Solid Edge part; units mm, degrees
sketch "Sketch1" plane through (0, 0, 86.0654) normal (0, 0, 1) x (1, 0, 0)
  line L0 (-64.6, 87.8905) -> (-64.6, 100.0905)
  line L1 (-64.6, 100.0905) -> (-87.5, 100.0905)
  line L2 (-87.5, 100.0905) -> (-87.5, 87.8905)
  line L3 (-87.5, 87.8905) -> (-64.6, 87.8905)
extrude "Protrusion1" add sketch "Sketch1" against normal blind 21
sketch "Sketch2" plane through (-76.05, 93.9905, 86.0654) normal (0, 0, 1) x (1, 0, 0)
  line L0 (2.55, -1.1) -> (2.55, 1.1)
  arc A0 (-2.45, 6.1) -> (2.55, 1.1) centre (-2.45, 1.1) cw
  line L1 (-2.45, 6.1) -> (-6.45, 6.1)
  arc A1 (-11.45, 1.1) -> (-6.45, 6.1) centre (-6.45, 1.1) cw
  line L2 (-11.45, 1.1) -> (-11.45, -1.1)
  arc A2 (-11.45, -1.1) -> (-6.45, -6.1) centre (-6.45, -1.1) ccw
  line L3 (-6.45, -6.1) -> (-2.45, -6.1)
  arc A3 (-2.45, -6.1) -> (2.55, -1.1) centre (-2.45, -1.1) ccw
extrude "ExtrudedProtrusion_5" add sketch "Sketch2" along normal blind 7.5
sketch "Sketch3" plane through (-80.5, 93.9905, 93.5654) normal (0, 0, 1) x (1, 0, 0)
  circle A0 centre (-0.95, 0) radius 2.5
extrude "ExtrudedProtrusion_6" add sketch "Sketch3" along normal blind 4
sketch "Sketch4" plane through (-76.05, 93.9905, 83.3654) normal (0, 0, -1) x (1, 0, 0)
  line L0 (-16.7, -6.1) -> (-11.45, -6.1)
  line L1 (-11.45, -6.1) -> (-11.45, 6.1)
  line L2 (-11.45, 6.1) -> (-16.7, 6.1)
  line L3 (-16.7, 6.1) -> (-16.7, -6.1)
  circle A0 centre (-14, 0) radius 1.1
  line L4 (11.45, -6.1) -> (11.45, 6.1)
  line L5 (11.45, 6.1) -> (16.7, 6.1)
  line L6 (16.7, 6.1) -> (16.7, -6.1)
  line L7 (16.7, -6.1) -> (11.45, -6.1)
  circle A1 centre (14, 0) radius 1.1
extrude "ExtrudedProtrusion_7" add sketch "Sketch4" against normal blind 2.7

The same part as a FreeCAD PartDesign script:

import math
import FreeCAD as App
import Part
import Sketcher

V = App.Vector
Q = App.Units.Quantity


def add_polygon(sketch, points):
    """Adds a closed chain of lines whose ends are joined by coincident constraints."""
    first, n = sketch.GeometryCount, len(points)
    for a, b in zip(points, points[1:] + points[:1]):
        sketch.addGeometry(Part.LineSegment(App.Vector(*a, 0), App.Vector(*b, 0)), False)
    for i in range(n):
        sketch.addConstraint(Sketcher.Constraint("Coincident", first + i, 2, first + (i + 1) % n, 1))

doc = App.newDocument("Part")
body = doc.addObject("PartDesign::Body", "Body")

# Sketch on XY plane
sketch1 = body.newObject("Sketcher::SketchObject", "Sketch")
sketch1.AttachmentSupport = (doc.getObject("XY_Plane"), [""])
sketch1.MapMode = "FlatFace"
sketch1.AttachmentOffset = App.Placement(V(0, 0, 86.0654), App.Rotation())
add_polygon(sketch1, [(-88, 88), (-65, 88), (-65, 100), (-88, 100)])  # lines 0-3
sketch1.addConstraint([
    Sketcher.Constraint("Horizontal", 0),
    Sketcher.Constraint("Vertical", 1),
    Sketcher.Constraint("Horizontal", 2),
    Sketcher.Constraint("Vertical", 3),
    Sketcher.Constraint("DistanceX", 0, 1, 0, 2, Q("22.9 mm")),
    Sketcher.Constraint("DistanceY", 1, 1, 1, 2, Q("12.2 mm")),
    Sketcher.Constraint("DistanceX", 0, 2, -1, 1, Q("64.6 mm")),
    Sketcher.Constraint("DistanceY", -1, 1, 0, 2, Q("87.8905 mm")),
])
pad1 = body.newObject("PartDesign::Pad", "Pad")
pad1.Profile = sketch1
pad1.Length = 21
pad1.Reversed = True

# Sketch on XY plane
sketch2 = body.newObject("Sketcher::SketchObject", "Sketch001")
sketch2.AttachmentSupport = (doc.getObject("XY_Plane"), [""])
sketch2.MapMode = "FlatFace"
sketch2.AttachmentOffset = App.Placement(V(0, 0, 86.0654), App.Rotation())
sketch2.addGeometry([
    Part.ArcOfCircle(Part.Circle(V(-78.5, 92.9, 0), V(0, 0, 1), 5), math.radians(-90), math.radians(0)),  # 0
    Part.LineSegment(V(-73.5, 92.9, 0), V(-73.5, 95.1, 0)),  # 1
    Part.ArcOfCircle(Part.Circle(V(-78.5, 95.1, 0), V(0, 0, 1), 5), math.radians(0), math.radians(90)),  # 2
    Part.LineSegment(V(-78.5, 100.1, 0), V(-82.5, 100.1, 0)),  # 3
    Part.ArcOfCircle(Part.Circle(V(-82.5, 95.1, 0), V(0, 0, 1), 5), math.radians(90), math.radians(180)),  # 4
    Part.LineSegment(V(-87.5, 95.1, 0), V(-87.5, 92.9, 0)),  # 5
    Part.ArcOfCircle(Part.Circle(V(-82.5, 92.9, 0), V(0, 0, 1), 5), math.radians(180), math.radians(270)),  # 6
    Part.LineSegment(V(-82.5, 87.9, 0), V(-78.5, 87.9, 0)),  # 7
], False)
sketch2.addConstraint([
    Sketcher.Constraint("Tangent", 0, 2, 1, 1),
    Sketcher.Constraint("Tangent", 1, 2, 2, 1),
    Sketcher.Constraint("Tangent", 2, 2, 3, 1),
    Sketcher.Constraint("Tangent", 3, 2, 4, 1),
    Sketcher.Constraint("Tangent", 4, 2, 5, 1),
    Sketcher.Constraint("Tangent", 5, 2, 6, 1),
    Sketcher.Constraint("Tangent", 6, 2, 7, 1),
    Sketcher.Constraint("Tangent", 7, 2, 0, 1),
    Sketcher.Constraint("Vertical", 1),
    Sketcher.Constraint("Horizontal", 3),
    Sketcher.Constraint("Vertical", 5),
    Sketcher.Constraint("Horizontal", 7),
    Sketcher.Constraint("Equal", 0, 2),
    Sketcher.Constraint("Equal", 2, 4),
    Sketcher.Constraint("Equal", 4, 6),
    Sketcher.Constraint("Radius", 0, Q("5 mm")),
    Sketcher.Constraint("DistanceX", 3, 2, 3, 1, Q("4 mm")),
    Sketcher.Constraint("DistanceY", 1, 1, 1, 2, Q("2.2 mm")),
    Sketcher.Constraint("DistanceX", 0, 3, -1, 1, Q("78.5 mm")),
    Sketcher.Constraint("DistanceY", -1, 1, 0, 3, Q("92.8905 mm")),
])
pad2 = body.newObject("PartDesign::Pad", "Pad001")
pad2.Profile = sketch2
pad2.Length = 7.5

# Sketch on XY plane
sketch3 = body.newObject("Sketcher::SketchObject", "Sketch002")
sketch3.AttachmentSupport = (doc.getObject("XY_Plane"), [""])
sketch3.MapMode = "FlatFace"
sketch3.AttachmentOffset = App.Placement(V(0, 0, 93.5654), App.Rotation())
sketch3.addGeometry(Part.Circle(V(-81.5, 94, 0), V(0, 0, 1), 2.5), False)
sketch3.addConstraint([
    Sketcher.Constraint("Diameter", 0, Q("5 mm")),
    Sketcher.Constraint("DistanceX", 0, 3, -1, 1, Q("81.45 mm")),
    Sketcher.Constraint("DistanceY", -1, 1, 0, 3, Q("93.9905 mm")),
])
pad3 = body.newObject("PartDesign::Pad", "Pad002")
pad3.Profile = sketch3
pad3.Length = 4

# Sketch on XY plane
sketch4 = body.newObject("Sketcher::SketchObject", "Sketch003")
sketch4.AttachmentSupport = (doc.getObject("XY_Plane"), [""])
sketch4.MapMode = "FlatFace"
sketch4.AttachmentOffset = App.Placement(V(0, 0, 83.3654), App.Rotation())
add_polygon(sketch4, [(-92.8, 87.9), (-92.8, 100.1), (-87.5, 100.1), (-87.5, 87.9)])  # lines 0-3
sketch4.addGeometry(Part.Circle(V(-90, 94, 0), V(0, 0, 1), 1.1), False)  # 4
add_polygon(sketch4, [(-64.6, 87.9), (-64.6, 100.1), (-59.4, 100.1), (-59.4, 87.9)])  # lines 5-8
sketch4.addGeometry(Part.Circle(V(-62, 94, 0), V(0, 0, 1), 1.1), False)  # 9
sketch4.addConstraint([
    Sketcher.Constraint("Vertical", 0),
    Sketcher.Constraint("Horizontal", 1),
    Sketcher.Constraint("Vertical", 2),
    Sketcher.Constraint("Horizontal", 3),
    Sketcher.Constraint("Vertical", 5),
    Sketcher.Constraint("Horizontal", 6),
    Sketcher.Constraint("Vertical", 7),
    Sketcher.Constraint("Horizontal", 8),
    Sketcher.Constraint("Equal", 4, 9),
    Sketcher.Constraint("Horizontal", 4, 3, 9, 3),
    Sketcher.Constraint("Horizontal", 1, 2, 5, 2),
    Sketcher.Constraint("Horizontal", 3, 2, 7, 2),
    Sketcher.Constraint("Equal", 3, 6),
    Sketcher.Constraint("Diameter", 4, Q("2.2 mm")),
    Sketcher.Constraint("DistanceY", 0, 1, 0, 2, Q("12.2 mm")),
    Sketcher.Constraint("DistanceX", 4, 3, 9, 3, Q("28 mm")),
    Sketcher.Constraint("DistanceX", 1, 1, 1, 2, Q("5.25 mm")),
    Sketcher.Constraint("DistanceX", 1, 2, -1, 1, Q("87.5 mm")),
    Sketcher.Constraint("DistanceX", 5, 2, -1, 1, Q("64.6 mm")),
    Sketcher.Constraint("DistanceX", 0, 2, 4, 3, Q("2.7 mm")),
    Sketcher.Constraint("DistanceY", 4, 3, 0, 2, Q("6.1 mm")),
    Sketcher.Constraint("DistanceY", -1, 1, 4, 3, Q("93.9905 mm")),
])
pad4 = body.newObject("PartDesign::Pad", "Pad003")
pad4.Profile = sketch4
pad4.Length = 2.7

doc.recompute()
